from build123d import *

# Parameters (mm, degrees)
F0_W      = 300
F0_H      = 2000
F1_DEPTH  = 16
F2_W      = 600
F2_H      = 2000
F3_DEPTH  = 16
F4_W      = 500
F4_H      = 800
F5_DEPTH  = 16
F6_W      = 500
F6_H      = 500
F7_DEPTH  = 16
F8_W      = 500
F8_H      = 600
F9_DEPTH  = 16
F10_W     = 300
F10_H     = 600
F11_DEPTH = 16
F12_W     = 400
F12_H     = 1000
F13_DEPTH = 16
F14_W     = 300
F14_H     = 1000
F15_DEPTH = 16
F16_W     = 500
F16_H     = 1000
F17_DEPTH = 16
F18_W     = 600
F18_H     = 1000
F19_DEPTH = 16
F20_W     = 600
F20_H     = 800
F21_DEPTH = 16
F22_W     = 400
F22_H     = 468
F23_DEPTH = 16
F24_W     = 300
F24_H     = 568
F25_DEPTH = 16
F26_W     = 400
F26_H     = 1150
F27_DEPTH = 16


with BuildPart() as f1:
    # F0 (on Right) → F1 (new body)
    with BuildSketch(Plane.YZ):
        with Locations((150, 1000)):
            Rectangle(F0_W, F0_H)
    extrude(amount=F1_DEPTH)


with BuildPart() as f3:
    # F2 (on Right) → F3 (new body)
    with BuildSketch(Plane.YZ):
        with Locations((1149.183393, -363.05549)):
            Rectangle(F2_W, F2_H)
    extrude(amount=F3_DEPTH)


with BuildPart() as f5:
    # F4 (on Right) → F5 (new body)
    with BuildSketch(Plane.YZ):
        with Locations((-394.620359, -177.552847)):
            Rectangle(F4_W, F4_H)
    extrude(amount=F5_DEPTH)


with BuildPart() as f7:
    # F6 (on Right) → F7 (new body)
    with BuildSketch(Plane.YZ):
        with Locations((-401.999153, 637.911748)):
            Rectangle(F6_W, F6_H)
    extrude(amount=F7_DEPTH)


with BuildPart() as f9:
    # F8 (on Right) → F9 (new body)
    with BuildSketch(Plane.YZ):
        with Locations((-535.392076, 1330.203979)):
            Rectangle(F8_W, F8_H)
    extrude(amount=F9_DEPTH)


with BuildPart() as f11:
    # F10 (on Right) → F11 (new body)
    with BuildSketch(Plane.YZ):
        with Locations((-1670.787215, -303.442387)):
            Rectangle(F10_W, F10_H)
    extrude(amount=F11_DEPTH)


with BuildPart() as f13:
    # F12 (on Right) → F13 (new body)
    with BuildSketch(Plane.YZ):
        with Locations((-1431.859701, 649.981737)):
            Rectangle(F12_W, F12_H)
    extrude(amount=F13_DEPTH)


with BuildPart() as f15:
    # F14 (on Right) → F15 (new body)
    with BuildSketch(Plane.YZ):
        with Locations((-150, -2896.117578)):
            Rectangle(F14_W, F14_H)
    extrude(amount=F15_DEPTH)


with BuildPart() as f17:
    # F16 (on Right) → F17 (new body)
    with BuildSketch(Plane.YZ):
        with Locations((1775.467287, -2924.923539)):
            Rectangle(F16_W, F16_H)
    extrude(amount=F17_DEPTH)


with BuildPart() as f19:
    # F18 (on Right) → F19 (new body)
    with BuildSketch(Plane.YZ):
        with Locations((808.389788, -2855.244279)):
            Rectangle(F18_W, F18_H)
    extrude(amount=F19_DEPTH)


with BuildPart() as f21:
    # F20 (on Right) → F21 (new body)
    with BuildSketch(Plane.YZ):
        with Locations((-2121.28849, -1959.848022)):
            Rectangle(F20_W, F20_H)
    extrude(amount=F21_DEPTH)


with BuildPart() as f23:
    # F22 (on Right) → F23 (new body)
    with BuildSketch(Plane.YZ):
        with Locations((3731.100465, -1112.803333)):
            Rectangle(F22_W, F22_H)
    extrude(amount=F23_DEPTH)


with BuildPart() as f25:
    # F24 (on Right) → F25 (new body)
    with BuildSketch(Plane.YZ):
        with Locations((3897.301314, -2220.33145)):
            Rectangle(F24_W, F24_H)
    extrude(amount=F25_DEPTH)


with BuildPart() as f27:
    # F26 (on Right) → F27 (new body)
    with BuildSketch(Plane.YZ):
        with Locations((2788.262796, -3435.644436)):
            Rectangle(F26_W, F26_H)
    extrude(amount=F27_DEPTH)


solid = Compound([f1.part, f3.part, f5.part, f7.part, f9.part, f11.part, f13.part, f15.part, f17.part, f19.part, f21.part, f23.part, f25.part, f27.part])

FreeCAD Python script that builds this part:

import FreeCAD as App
import Part
import Sketcher
from FreeCAD import Vector
Q = App.Units.Quantity


def add_polygon(sketch, points):
    """Adds a closed chain of lines whose ends are joined by coincident constraints."""
    first, n = sketch.GeometryCount, len(points)
    for a, b in zip(points, points[1:] + points[:1]):
        sketch.addGeometry(Part.LineSegment(App.Vector(*a, 0), App.Vector(*b, 0)), False)
    for i in range(n):
        sketch.addConstraint(Sketcher.Constraint("Coincident", first + i, 2, first + (i + 1) % n, 1))

doc = App.newDocument("Part")
params = doc.addObject("Spreadsheet::Sheet", "Params")
for row, (alias, value) in enumerate([
    ("sketch1_width", "300 mm"),
    ("sketch1_height", "2000 mm"),
    ("pad1_length", "16 mm"),
    ("sketch2_width", "600 mm"),
    ("sketch2_height", "2000 mm"),
    ("pad2_length", "16 mm"),
    ("sketch3_width", "500 mm"),
    ("sketch3_height", "800 mm"),
    ("pad3_length", "16 mm"),
    ("sketch4_width", "500 mm"),
    ("pad4_length", "16 mm"),
    ("sketch5_width", "500 mm"),
    ("sketch5_height", "600 mm"),
    ("pad5_length", "16 mm"),
    ("sketch6_width", "300 mm"),
    ("sketch6_height", "600 mm"),
    ("pad6_length", "16 mm"),
    ("sketch7_width", "400 mm"),
    ("sketch7_height", "1000 mm"),
    ("pad7_length", "16 mm"),
    ("sketch8_width", "300 mm"),
    ("sketch8_height", "1000 mm"),
    ("pad8_length", "16 mm"),
    ("sketch9_width", "500 mm"),
    ("sketch9_height", "1000 mm"),
    ("pad9_length", "16 mm"),
    ("sketch10_width", "600 mm"),
    ("sketch10_height", "1000 mm"),
    ("pad10_length", "16 mm"),
    ("sketch11_width", "600 mm"),
    ("sketch11_height", "800 mm"),
    ("pad11_length", "16 mm"),
    ("sketch12_width", "400 mm"),
    ("sketch12_height", "468 mm"),
    ("pad12_length", "16 mm"),
    ("sketch13_width", "300 mm"),
    ("sketch13_height", "568 mm"),
    ("pad13_length", "16 mm"),
    ("sketch14_width", "400 mm"),
    ("sketch14_height", "1150 mm"),
    ("pad14_length", "16 mm"),
], start=1):
    params.set(f"A{row}", alias)
    params.set(f"B{row}", "=" + value)
    params.setAlias(f"B{row}", alias)

body = doc.addObject("PartDesign::Body", "Body")

# Sketch on YZ plane
sketch1 = body.newObject("Sketcher::SketchObject", "Sketch")
sketch1.AttachmentSupport = (doc.getObject("YZ_Plane"), [""])
sketch1.MapMode = "FlatFace"
add_polygon(sketch1, [(0, 2000), (0, 0), (300, 0), (300, 2000)])  # lines 0-3
sketch1.addConstraint([
    Sketcher.Constraint("Vertical", 0),
    Sketcher.Constraint("Horizontal", 1),
    Sketcher.Constraint("Vertical", 2),
    Sketcher.Constraint("Horizontal", 3),
    Sketcher.Constraint("Coincident", 0, 2, -1, 1),
    Sketcher.Constraint("DistanceX", 1, 1, 1, 2, Q("300 mm")),
    Sketcher.Constraint("DistanceY", 0, 2, 0, 1, Q("2000 mm")),
])
sketch1.setExpression("Constraints[9]", "Params.sketch1_width")
sketch1.setExpression("Constraints[10]", "Params.sketch1_height")
pad1 = body.newObject("PartDesign::Pad", "Pad")
pad1.Profile = sketch1
pad1.setExpression("Length", "Params.pad1_length")
body2 = doc.addObject("PartDesign::Body", "Body001")

# Sketch on YZ plane
sketch2 = body2.newObject("Sketcher::SketchObject", "Sketch001")
sketch2.AttachmentSupport = (doc.getObject("YZ_Plane001"), [""])
sketch2.MapMode = "FlatFace"
add_polygon(sketch2, [(849.183393, 636.94451), (849.183393, -1363.05549), (1449.183393, -1363.05549), (1449.183393, 636.94451)])  # lines 0-3
sketch2.addConstraint([
    Sketcher.Constraint("Vertical", 0),
    Sketcher.Constraint("Horizontal", 1),
    Sketcher.Constraint("Vertical", 2),
    Sketcher.Constraint("Horizontal", 3),
    Sketcher.Constraint("DistanceX", 1, 1, 1, 2, Q("600 mm")),
    Sketcher.Constraint("DistanceY", 0, 2, 0, 1, Q("2000 mm")),
    Sketcher.Constraint("DistanceY", 0, 2, -1, 1, Q("1363.05549 mm")),
    Sketcher.Constraint("DistanceX", -1, 1, 0, 2, Q("849.183393 mm")),
])
sketch2.setExpression("Constraints[8]", "Params.sketch2_width")
sketch2.setExpression("Constraints[9]", "Params.sketch2_height")
pad2 = body2.newObject("PartDesign::Pad", "Pad001")
pad2.Profile = sketch2
pad2.setExpression("Length", "Params.pad2_length")
body3 = doc.addObject("PartDesign::Body", "Body002")

# Sketch on YZ plane
sketch3 = body3.newObject("Sketcher::SketchObject", "Sketch002")
sketch3.AttachmentSupport = (doc.getObject("YZ_Plane002"), [""])
sketch3.MapMode = "FlatFace"
add_polygon(sketch3, [(-644.620359, 222.447153), (-644.620359, -577.552847), (-144.620359, -577.552847), (-144.620359, 222.447153)])  # lines 0-3
sketch3.addConstraint([
    Sketcher.Constraint("Vertical", 0),
    Sketcher.Constraint("Horizontal", 1),
    Sketcher.Constraint("Vertical", 2),
    Sketcher.Constraint("Horizontal", 3),
    Sketcher.Constraint("DistanceX", 1, 1, 1, 2, Q("500 mm")),
    Sketcher.Constraint("DistanceY", 0, 2, 0, 1, Q("800 mm")),
    Sketcher.Constraint("DistanceX", 0, 2, -1, 1, Q("644.620359 mm")),
    Sketcher.Constraint("DistanceY", 0, 2, -1, 1, Q("577.552847 mm")),
])
sketch3.setExpression("Constraints[8]", "Params.sketch3_width")
sketch3.setExpression("Constraints[9]", "Params.sketch3_height")
pad3 = body3.newObject("PartDesign::Pad", "Pad002")
pad3.Profile = sketch3
pad3.setExpression("Length", "Params.pad3_length")
body4 = doc.addObject("PartDesign::Body", "Body003")

# Sketch on YZ plane
sketch4 = body4.newObject("Sketcher::SketchObject", "Sketch003")
sketch4.AttachmentSupport = (doc.getObject("YZ_Plane003"), [""])
sketch4.MapMode = "FlatFace"
add_polygon(sketch4, [(-651.999153, 887.911748), (-651.999153, 387.911748), (-151.999153, 387.911748), (-151.999153, 887.911748)])  # lines 0-3
sketch4.addConstraint([
    Sketcher.Constraint("Vertical", 0),
    Sketcher.Constraint("Horizontal", 1),
    Sketcher.Constraint("Vertical", 2),
    Sketcher.Constraint("Horizontal", 3),
    Sketcher.Constraint("Equal", 3, 0),
    Sketcher.Constraint("DistanceX", 1, 1, 1, 2, Q("500 mm")),
    Sketcher.Constraint("DistanceY", -1, 1, 0, 2, Q("387.911748 mm")),
    Sketcher.Constraint("DistanceX", 0, 2, -1, 1, Q("651.999153 mm")),
])
sketch4.setExpression("Constraints[9]", "Params.sketch4_width")
pad4 = body4.newObject("PartDesign::Pad", "Pad003")
pad4.Profile = sketch4
pad4.setExpression("Length", "Params.pad4_length")
body5 = doc.addObject("PartDesign::Body", "Body004")

# Sketch on YZ plane
sketch5 = body5.newObject("Sketcher::SketchObject", "Sketch004")
sketch5.AttachmentSupport = (doc.getObject("YZ_Plane004"), [""])
sketch5.MapMode = "FlatFace"
add_polygon(sketch5, [(-785.392076, 1630.203979), (-785.392076, 1030.203979), (-285.392076, 1030.203979), (-285.392076, 1630.203979)])  # lines 0-3
sketch5.addConstraint([
    Sketcher.Constraint("Vertical", 0),
    Sketcher.Constraint("Horizontal", 1),
    Sketcher.Constraint("Vertical", 2),
    Sketcher.Constraint("Horizontal", 3),
    Sketcher.Constraint("DistanceX", 1, 1, 1, 2, Q("500 mm")),
    Sketcher.Constraint("DistanceY", 0, 2, 0, 1, Q("600 mm")),
    Sketcher.Constraint("DistanceY", -1, 1, 0, 2, Q("1030.203979 mm")),
    Sketcher.Constraint("DistanceX", 0, 2, -1, 1, Q("785.392076 mm")),
])
sketch5.setExpression("Constraints[8]", "Params.sketch5_width")
sketch5.setExpression("Constraints[9]", "Params.sketch5_height")
pad5 = body5.newObject("PartDesign::Pad", "Pad004")
pad5.Profile = sketch5
pad5.setExpression("Length", "Params.pad5_length")
body6 = doc.addObject("PartDesign::Body", "Body005")

# Sketch on YZ plane
sketch6 = body6.newObject("Sketcher::SketchObject", "Sketch005")
sketch6.AttachmentSupport = (doc.getObject("YZ_Plane005"), [""])
sketch6.MapMode = "FlatFace"
add_polygon(sketch6, [(-1820.787215, -3.442387), (-1820.787215, -603.442387), (-1520.787215, -603.442387), (-1520.787215, -3.442387)])  # lines 0-3
sketch6.addConstraint([
    Sketcher.Constraint("Vertical", 0),
    Sketcher.Constraint("Horizontal", 1),
    Sketcher.Constraint("Vertical", 2),
    Sketcher.Constraint("Horizontal", 3),
    Sketcher.Constraint("DistanceX", 1, 1, 1, 2, Q("300 mm")),
    Sketcher.Constraint("DistanceY", 0, 2, 0, 1, Q("600 mm")),
    Sketcher.Constraint("DistanceX", 0, 2, -1, 1, Q("1820.787215 mm")),
    Sketcher.Constraint("DistanceY", 0, 2, -1, 1, Q("603.442387 mm")),
])
sketch6.setExpression("Constraints[8]", "Params.sketch6_width")
sketch6.setExpression("Constraints[9]", "Params.sketch6_height")
pad6 = body6.newObject("PartDesign::Pad", "Pad005")
pad6.Profile = sketch6
pad6.setExpression("Length", "Params.pad6_length")
body7 = doc.addObject("PartDesign::Body", "Body006")

# Sketch on YZ plane
sketch7 = body7.newObject("Sketcher::SketchObject", "Sketch006")
sketch7.AttachmentSupport = (doc.getObject("YZ_Plane006"), [""])
sketch7.MapMode = "FlatFace"
add_polygon(sketch7, [(-1631.859701, 1149.981737), (-1631.859701, 149.981737), (-1231.859701, 149.981737), (-1231.859701, 1149.981737)])  # lines 0-3
sketch7.addConstraint([
    Sketcher.Constraint("Vertical", 0),
    Sketcher.Constraint("Horizontal", 1),
    Sketcher.Constraint("Vertical", 2),
    Sketcher.Constraint("Horizontal", 3),
    Sketcher.Constraint("DistanceX", 1, 1, 1, 2, Q("400 mm")),
    Sketcher.Constraint("DistanceY", 0, 2, 0, 1, Q("1000 mm")),
    Sketcher.Constraint("DistanceX", 0, 2, -1, 1, Q("1631.859701 mm")),
    Sketcher.Constraint("DistanceY", -1, 1, 0, 2, Q("149.981737 mm")),
])
sketch7.setExpression("Constraints[8]", "Params.sketch7_width")
sketch7.setExpression("Constraints[9]", "Params.sketch7_height")
pad7 = body7.newObject("PartDesign::Pad", "Pad006")
pad7.Profile = sketch7
pad7.setExpression("Length", "Params.pad7_length")
body8 = doc.addObject("PartDesign::Body", "Body007")

# Sketch on YZ plane
sketch8 = body8.newObject("Sketcher::SketchObject", "Sketch007")
sketch8.AttachmentSupport = (doc.getObject("YZ_Plane007"), [""])
sketch8.MapMode = "FlatFace"
add_polygon(sketch8, [(-300, -2396.117578), (-300, -3396.117578), (0, -3396.117578), (0, -2396.117578)])  # lines 0-3
sketch8.addConstraint([
    Sketcher.Constraint("Vertical", 0),
    Sketcher.Constraint("Horizontal", 1),
    Sketcher.Constraint("Vertical", 2),
    Sketcher.Constraint("Horizontal", 3),
    Sketcher.Constraint("PointOnObject", 1, 2, -2),
    Sketcher.Constraint("DistanceX", 1, 1, 1, 2, Q("300 mm")),
    Sketcher.Constraint("DistanceY", 0, 2, 0, 1, Q("1000 mm")),
    Sketcher.Constraint("DistanceY", 0, 2, -1, 1, Q("3396.117578 mm")),
])
sketch8.setExpression("Constraints[9]", "Params.sketch8_width")
sketch8.setExpression("Constraints[10]", "Params.sketch8_height")
pad8 = body8.newObject("PartDesign::Pad", "Pad007")
pad8.Profile = sketch8
pad8.setExpression("Length", "Params.pad8_length")
body9 = doc.addObject("PartDesign::Body", "Body008")

# Sketch on YZ plane
sketch9 = body9.newObject("Sketcher::SketchObject", "Sketch008")
sketch9.AttachmentSupport = (doc.getObject("YZ_Plane008"), [""])
sketch9.MapMode = "FlatFace"
add_polygon(sketch9, [(1525.467287, -2424.923539), (1525.467287, -3424.923539), (2025.467287, -3424.923539), (2025.467287, -2424.923539)])  # lines 0-3
sketch9.addConstraint([
    Sketcher.Constraint("Vertical", 0),
    Sketcher.Constraint("Horizontal", 1),
    Sketcher.Constraint("Vertical", 2),
    Sketcher.Constraint("Horizontal", 3),
    Sketcher.Constraint("DistanceX", 1, 1, 1, 2, Q("500 mm")),
    Sketcher.Constraint("DistanceY", 0, 2, 0, 1, Q("1000 mm")),
    Sketcher.Constraint("DistanceY", 0, 2, -1, 1, Q("3424.923539 mm")),
    Sketcher.Constraint("DistanceX", -1, 1, 0, 2, Q("1525.467287 mm")),
])
sketch9.setExpression("Constraints[8]", "Params.sketch9_width")
sketch9.setExpression("Constraints[9]", "Params.sketch9_height")
pad9 = body9.newObject("PartDesign::Pad", "Pad008")
pad9.Profile = sketch9
pad9.setExpression("Length", "Params.pad9_length")
body10 = doc.addObject("PartDesign::Body", "Body009")

# Sketch on YZ plane
sketch10 = body10.newObject("Sketcher::SketchObject", "Sketch009")
sketch10.AttachmentSupport = (doc.getObject("YZ_Plane009"), [""])
sketch10.MapMode = "FlatFace"
add_polygon(sketch10, [(508.389788, -2355.244279), (508.389788, -3355.244279), (1108.389788, -3355.244279), (1108.389788, -2355.244279)])  # lines 0-3
sketch10.addConstraint([
    Sketcher.Constraint("Vertical", 0),
    Sketcher.Constraint("Horizontal", 1),
    Sketcher.Constraint("Vertical", 2),
    Sketcher.Constraint("Horizontal", 3),
    Sketcher.Constraint("DistanceX", 1, 1, 1, 2, Q("600 mm")),
    Sketcher.Constraint("DistanceY", 0, 2, 0, 1, Q("1000 mm")),
    Sketcher.Constraint("DistanceX", -1, 1, 0, 2, Q("508.389788 mm")),
    Sketcher.Constraint("DistanceY", 0, 2, -1, 1, Q("3355.244279 mm")),
])
sketch10.setExpression("Constraints[8]", "Params.sketch10_width")
sketch10.setExpression("Constraints[9]", "Params.sketch10_height")
pad10 = body10.newObject("PartDesign::Pad", "Pad009")
pad10.Profile = sketch10
pad10.setExpression("Length", "Params.pad10_length")
body11 = doc.addObject("PartDesign::Body", "Body010")

# Sketch on YZ plane
sketch11 = body11.newObject("Sketcher::SketchObject", "Sketch010")
sketch11.AttachmentSupport = (doc.getObject("YZ_Plane010"), [""])
sketch11.MapMode = "FlatFace"
add_polygon(sketch11, [(-2421.28849, -1559.848022), (-2421.28849, -2359.848022), (-1821.28849, -2359.848022), (-1821.28849, -1559.848022)])  # lines 0-3
sketch11.addConstraint([
    Sketcher.Constraint("Vertical", 0),
    Sketcher.Constraint("Horizontal", 1),
    Sketcher.Constraint("Vertical", 2),
    Sketcher.Constraint("Horizontal", 3),
    Sketcher.Constraint("DistanceX", 1, 1, 1, 2, Q("600 mm")),
    Sketcher.Constraint("DistanceY", 0, 2, 0, 1, Q("800 mm")),
    Sketcher.Constraint("DistanceX", 0, 2, -1, 1, Q("2421.28849 mm")),
    Sketcher.Constraint("DistanceY", 2, 2, -1, 1, Q("1559.848022 mm")),
])
sketch11.setExpression("Constraints[8]", "Params.sketch11_width")
sketch11.setExpression("Constraints[9]", "Params.sketch11_height")
pad11 = body11.newObject("PartDesign::Pad", "Pad010")
pad11.Profile = sketch11
pad11.setExpression("Length", "Params.pad11_length")
body12 = doc.addObject("PartDesign::Body", "Body011")

# Sketch on YZ plane
sketch12 = body12.newObject("Sketcher::SketchObject", "Sketch011")
sketch12.AttachmentSupport = (doc.getObject("YZ_Plane011"), [""])
sketch12.MapMode = "FlatFace"
add_polygon(sketch12, [(3531.100465, -878.803333), (3531.100465, -1346.803333), (3931.100465, -1346.803333), (3931.100465, -878.803333)])  # lines 0-3
sketch12.addConstraint([
    Sketcher.Constraint("Vertical", 0),
    Sketcher.Constraint("Horizontal", 1),
    Sketcher.Constraint("Vertical", 2),
    Sketcher.Constraint("Horizontal", 3),
    Sketcher.Constraint("DistanceX", 1, 1, 1, 2, Q("400 mm")),
    Sketcher.Constraint("DistanceY", 0, 2, 0, 1, Q("468 mm")),
    Sketcher.Constraint("DistanceX", -1, 1, 0, 2, Q("3531.100465 mm")),
    Sketcher.Constraint("DistanceY", 0, 2, -1, 1, Q("1346.803333 mm")),
])
sketch12.setExpression("Constraints[8]", "Params.sketch12_width")
sketch12.setExpression("Constraints[9]", "Params.sketch12_height")
pad12 = body12.newObject("PartDesign::Pad", "Pad011")
pad12.Profile = sketch12
pad12.setExpression("Length", "Params.pad12_length")
body13 = doc.addObject("PartDesign::Body", "Body012")

# Sketch on YZ plane
sketch13 = body13.newObject("Sketcher::SketchObject", "Sketch012")
sketch13.AttachmentSupport = (doc.getObject("YZ_Plane012"), [""])
sketch13.MapMode = "FlatFace"
add_polygon(sketch13, [(3747.301314, -1936.33145), (3747.301314, -2504.33145), (4047.301314, -2504.33145), (4047.301314, -1936.33145)])  # lines 0-3
sketch13.addConstraint([
    Sketcher.Constraint("Vertical", 0),
    Sketcher.Constraint("Horizontal", 1),
    Sketcher.Constraint("Vertical", 2),
    Sketcher.Constraint("Horizontal", 3),
    Sketcher.Constraint("DistanceX", 1, 1, 1, 2, Q("300 mm")),
    Sketcher.Constraint("DistanceY", 0, 2, 0, 1, Q("568 mm")),
    Sketcher.Constraint("DistanceY", 0, 2, -1, 1, Q("2504.33145 mm")),
    Sketcher.Constraint("DistanceX", -1, 1, 0, 2, Q("3747.301314 mm")),
])
sketch13.setExpression("Constraints[8]", "Params.sketch13_width")
sketch13.setExpression("Constraints[9]", "Params.sketch13_height")
pad13 = body13.newObject("PartDesign::Pad", "Pad012")
pad13.Profile = sketch13
pad13.setExpression("Length", "Params.pad13_length")
body14 = doc.addObject("PartDesign::Body", "Body013")

# Sketch on YZ plane
sketch14 = body14.newObject("Sketcher::SketchObject", "Sketch013")
sketch14.AttachmentSupport = (doc.getObject("YZ_Plane013"), [""])
sketch14.MapMode = "FlatFace"
add_polygon(sketch14, [(2588.262796, -2860.644436), (2588.262796, -4010.644436), (2988.262796, -4010.644436), (2988.262796, -2860.644436)])  # lines 0-3
sketch14.addConstraint([
    Sketcher.Constraint("Vertical", 0),
    Sketcher.Constraint("Horizontal", 1),
    Sketcher.Constraint("Vertical", 2),
    Sketcher.Constraint("Horizontal", 3),
    Sketcher.Constraint("DistanceX", 1, 1, 1, 2, Q("400 mm")),
    Sketcher.Constraint("DistanceY", 0, 2, 0, 1, Q("1150 mm")),
    Sketcher.Constraint("DistanceX", -1, 1, 0, 2, Q("2588.262796 mm")),
    Sketcher.Constraint("DistanceY", 0, 2, -1, 1, Q("4010.644436 mm")),
])
sketch14.setExpression("Constraints[8]", "Params.sketch14_width")
sketch14.setExpression("Constraints[9]", "Params.sketch14_height")
pad14 = body14.newObject("PartDesign::Pad", "Pad013")
pad14.Profile = sketch14
pad14.setExpression("Length", "Params.pad14_length")

doc.recompute()
